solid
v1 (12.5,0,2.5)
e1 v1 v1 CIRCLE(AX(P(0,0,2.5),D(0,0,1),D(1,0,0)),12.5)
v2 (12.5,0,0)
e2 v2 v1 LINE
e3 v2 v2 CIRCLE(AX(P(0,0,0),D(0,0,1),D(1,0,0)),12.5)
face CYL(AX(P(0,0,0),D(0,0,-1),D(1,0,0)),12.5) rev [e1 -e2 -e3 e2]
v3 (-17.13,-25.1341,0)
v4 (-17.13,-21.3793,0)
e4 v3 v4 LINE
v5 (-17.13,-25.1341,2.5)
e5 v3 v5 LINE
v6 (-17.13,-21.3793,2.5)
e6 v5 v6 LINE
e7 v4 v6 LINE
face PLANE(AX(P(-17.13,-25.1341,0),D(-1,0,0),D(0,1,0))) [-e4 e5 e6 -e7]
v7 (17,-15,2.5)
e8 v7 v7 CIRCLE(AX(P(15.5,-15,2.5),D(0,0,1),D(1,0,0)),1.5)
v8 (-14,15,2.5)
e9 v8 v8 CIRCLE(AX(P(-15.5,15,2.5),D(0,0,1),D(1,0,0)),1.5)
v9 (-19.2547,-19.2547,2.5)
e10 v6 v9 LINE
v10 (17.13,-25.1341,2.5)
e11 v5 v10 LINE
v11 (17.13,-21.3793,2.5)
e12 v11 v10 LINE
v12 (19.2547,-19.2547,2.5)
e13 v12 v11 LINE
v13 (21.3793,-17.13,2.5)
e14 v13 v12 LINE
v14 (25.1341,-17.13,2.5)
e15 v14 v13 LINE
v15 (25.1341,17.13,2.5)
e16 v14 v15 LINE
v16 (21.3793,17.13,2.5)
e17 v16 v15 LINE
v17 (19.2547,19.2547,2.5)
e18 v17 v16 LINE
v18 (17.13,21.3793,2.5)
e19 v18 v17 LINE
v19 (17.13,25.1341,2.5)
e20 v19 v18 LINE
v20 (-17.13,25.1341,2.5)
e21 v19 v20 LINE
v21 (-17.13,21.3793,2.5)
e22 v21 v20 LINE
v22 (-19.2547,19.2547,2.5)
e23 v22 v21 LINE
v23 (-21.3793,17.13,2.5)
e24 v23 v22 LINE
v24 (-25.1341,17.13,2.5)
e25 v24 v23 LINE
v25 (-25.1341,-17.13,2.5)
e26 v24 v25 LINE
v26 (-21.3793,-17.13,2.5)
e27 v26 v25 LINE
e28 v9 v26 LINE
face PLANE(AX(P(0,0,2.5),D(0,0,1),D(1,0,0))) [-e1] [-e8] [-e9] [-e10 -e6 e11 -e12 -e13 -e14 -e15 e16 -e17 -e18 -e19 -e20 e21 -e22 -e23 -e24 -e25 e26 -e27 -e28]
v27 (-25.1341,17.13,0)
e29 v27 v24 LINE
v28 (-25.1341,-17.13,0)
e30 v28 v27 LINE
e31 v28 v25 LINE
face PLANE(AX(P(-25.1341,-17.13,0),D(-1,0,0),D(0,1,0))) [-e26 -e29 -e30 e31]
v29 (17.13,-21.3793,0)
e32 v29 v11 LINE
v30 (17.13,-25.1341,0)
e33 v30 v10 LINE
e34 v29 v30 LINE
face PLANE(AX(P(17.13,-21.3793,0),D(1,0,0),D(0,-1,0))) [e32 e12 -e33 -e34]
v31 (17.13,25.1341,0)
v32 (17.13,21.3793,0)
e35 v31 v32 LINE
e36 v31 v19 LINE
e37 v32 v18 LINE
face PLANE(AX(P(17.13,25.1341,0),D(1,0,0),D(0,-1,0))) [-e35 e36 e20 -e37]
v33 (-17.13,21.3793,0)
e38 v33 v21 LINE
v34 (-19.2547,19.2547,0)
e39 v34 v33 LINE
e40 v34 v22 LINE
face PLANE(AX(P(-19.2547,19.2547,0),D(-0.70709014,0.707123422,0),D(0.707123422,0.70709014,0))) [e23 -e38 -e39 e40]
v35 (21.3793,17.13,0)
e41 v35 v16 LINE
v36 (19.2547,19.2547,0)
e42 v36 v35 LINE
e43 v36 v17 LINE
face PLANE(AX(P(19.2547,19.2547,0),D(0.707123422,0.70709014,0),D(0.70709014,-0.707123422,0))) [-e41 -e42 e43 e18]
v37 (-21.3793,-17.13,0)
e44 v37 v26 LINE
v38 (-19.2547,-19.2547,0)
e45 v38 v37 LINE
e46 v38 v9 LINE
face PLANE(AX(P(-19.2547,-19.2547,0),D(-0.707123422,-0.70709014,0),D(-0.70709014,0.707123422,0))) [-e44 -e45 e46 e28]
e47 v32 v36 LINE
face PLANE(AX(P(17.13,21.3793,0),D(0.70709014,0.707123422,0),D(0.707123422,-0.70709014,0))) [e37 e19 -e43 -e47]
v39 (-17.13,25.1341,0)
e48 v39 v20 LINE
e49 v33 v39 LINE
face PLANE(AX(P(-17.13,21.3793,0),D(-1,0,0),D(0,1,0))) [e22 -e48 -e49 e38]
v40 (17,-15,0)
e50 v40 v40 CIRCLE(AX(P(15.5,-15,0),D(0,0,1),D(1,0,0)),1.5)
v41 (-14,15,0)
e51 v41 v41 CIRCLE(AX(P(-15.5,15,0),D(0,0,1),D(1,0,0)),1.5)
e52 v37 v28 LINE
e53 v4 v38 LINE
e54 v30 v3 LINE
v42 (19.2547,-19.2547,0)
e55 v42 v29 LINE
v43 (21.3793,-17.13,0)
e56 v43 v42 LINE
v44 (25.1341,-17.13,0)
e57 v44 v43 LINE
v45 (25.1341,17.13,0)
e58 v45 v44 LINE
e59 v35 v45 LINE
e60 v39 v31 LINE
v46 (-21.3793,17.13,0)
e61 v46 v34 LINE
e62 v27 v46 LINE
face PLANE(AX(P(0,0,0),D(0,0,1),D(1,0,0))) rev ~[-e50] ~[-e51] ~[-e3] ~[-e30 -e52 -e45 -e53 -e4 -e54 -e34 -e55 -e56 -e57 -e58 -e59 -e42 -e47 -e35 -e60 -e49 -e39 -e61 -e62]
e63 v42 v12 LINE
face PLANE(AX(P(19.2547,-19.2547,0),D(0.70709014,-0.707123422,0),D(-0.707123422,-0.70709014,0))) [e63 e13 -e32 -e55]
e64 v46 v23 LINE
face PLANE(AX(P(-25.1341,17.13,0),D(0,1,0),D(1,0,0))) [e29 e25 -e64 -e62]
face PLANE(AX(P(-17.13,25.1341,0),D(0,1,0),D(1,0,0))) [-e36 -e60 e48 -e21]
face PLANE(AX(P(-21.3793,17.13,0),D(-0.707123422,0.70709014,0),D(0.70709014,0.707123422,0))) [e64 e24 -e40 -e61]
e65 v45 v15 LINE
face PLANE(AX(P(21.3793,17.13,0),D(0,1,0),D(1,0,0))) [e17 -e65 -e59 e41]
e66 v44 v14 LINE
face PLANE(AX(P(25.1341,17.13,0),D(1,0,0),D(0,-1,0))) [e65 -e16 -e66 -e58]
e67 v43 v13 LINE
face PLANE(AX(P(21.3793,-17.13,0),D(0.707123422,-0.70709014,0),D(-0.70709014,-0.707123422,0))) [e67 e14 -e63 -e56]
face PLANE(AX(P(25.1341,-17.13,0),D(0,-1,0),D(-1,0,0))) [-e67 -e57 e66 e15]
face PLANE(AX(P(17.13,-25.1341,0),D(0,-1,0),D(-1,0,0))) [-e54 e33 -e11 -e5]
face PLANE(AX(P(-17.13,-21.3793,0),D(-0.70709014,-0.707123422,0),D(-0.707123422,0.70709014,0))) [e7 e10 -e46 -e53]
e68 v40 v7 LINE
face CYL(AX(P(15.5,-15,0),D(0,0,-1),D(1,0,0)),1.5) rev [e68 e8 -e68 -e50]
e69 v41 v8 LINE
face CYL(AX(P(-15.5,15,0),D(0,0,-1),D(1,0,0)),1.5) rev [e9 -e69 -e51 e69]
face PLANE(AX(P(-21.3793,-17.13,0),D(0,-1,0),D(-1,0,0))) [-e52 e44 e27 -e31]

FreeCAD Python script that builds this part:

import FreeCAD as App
import Part
import Sketcher

V = App.Vector

doc = App.newDocument("Part")
body = doc.addObject("PartDesign::Body", "Body")

# Sketch on XY plane
sketch1 = doc.addObject("Sketcher::SketchObject", "Sketch")
body.addObject(sketch1)
sketch1.AttachmentSupport = (doc.XY_Plane, [""])
sketch1.MapMode = "FlatFace"
sketch1.addGeometry([
    Part.LineSegment(V(-17.13, 25.1341, 0), V(-17.13, 21.3793, 0)),  # 0
    Part.LineSegment(V(-17.13, 21.3793, 0), V(-19.2547, 19.2547, 0)),  # 1
    Part.LineSegment(V(-19.2547, 19.2547, 0), V(-21.3793, 17.13, 0)),  # 2
    Part.LineSegment(V(-21.3793, 17.13, 0), V(-25.1341, 17.13, 0)),  # 3
    Part.LineSegment(V(-25.1341, 17.13, 0), V(-25.1341, -17.13, 0)),  # 4
    Part.LineSegment(V(-25.1341, -17.13, 0), V(-21.3793, -17.13, 0)),  # 5
    Part.LineSegment(V(-21.3793, -17.13, 0), V(-19.2547, -19.2547, 0)),  # 6
    Part.LineSegment(V(-19.2547, -19.2547, 0), V(-17.13, -21.3793, 0)),  # 7
    Part.LineSegment(V(-17.13, -21.3793, 0), V(-17.13, -25.1341, 0)),  # 8
    Part.LineSegment(V(-17.13, -25.1341, 0), V(17.13, -25.1341, 0)),  # 9
    Part.LineSegment(V(17.13, -25.1341, 0), V(17.13, -21.3793, 0)),  # 10
    Part.LineSegment(V(17.13, -21.3793, 0), V(19.2547, -19.2547, 0)),  # 11
    Part.LineSegment(V(19.2547, -19.2547, 0), V(21.3793, -17.13, 0)),  # 12
    Part.LineSegment(V(21.3793, -17.13, 0), V(25.1341, -17.13, 0)),  # 13
    Part.LineSegment(V(25.1341, -17.13, 0), V(25.1341, 17.13, 0)),  # 14
    Part.LineSegment(V(25.1341, 17.13, 0), V(21.3793, 17.13, 0)),  # 15
    Part.LineSegment(V(21.3793, 17.13, 0), V(19.2547, 19.2547, 0)),  # 16
    Part.LineSegment(V(19.2547, 19.2547, 0), V(17.13, 21.3793, 0)),  # 17
    Part.LineSegment(V(17.13, 21.3793, 0), V(17.13, 25.1341, 0)),  # 18
    Part.LineSegment(V(17.13, 25.1341, 0), V(-17.13, 25.1341, 0)),  # 19
    Part.Circle(V(0, 0, 0), V(0, 0, 1), 12.5),  # 20
    Part.Circle(V(15.5, -15, 0), V(0, 0, 1), 1.5),  # 21
    Part.Circle(V(-15.5, 15, 0), V(0, 0, 1), 1.5),  # 22
], False)
sketch1.addConstraint([
    Sketcher.Constraint("Coincident", 0, 2, 1, 1),
    Sketcher.Constraint("Coincident", 1, 2, 2, 1),
    Sketcher.Constraint("Coincident", 2, 2, 3, 1),
    Sketcher.Constraint("Coincident", 3, 2, 4, 1),
    Sketcher.Constraint("Coincident", 4, 2, 5, 1),
    Sketcher.Constraint("Coincident", 5, 2, 6, 1),
    Sketcher.Constraint("Coincident", 6, 2, 7, 1),
    Sketcher.Constraint("Coincident", 7, 2, 8, 1),
    Sketcher.Constraint("Coincident", 8, 2, 9, 1),
    Sketcher.Constraint("Coincident", 9, 2, 10, 1),
    Sketcher.Constraint("Coincident", 10, 2, 11, 1),
    Sketcher.Constraint("Coincident", 11, 2, 12, 1),
    Sketcher.Constraint("Coincident", 12, 2, 13, 1),
    Sketcher.Constraint("Coincident", 13, 2, 14, 1),
    Sketcher.Constraint("Coincident", 14, 2, 15, 1),
    Sketcher.Constraint("Coincident", 15, 2, 16, 1),
    Sketcher.Constraint("Coincident", 16, 2, 17, 1),
    Sketcher.Constraint("Coincident", 17, 2, 18, 1),
    Sketcher.Constraint("Coincident", 18, 2, 19, 1),
    Sketcher.Constraint("Coincident", 19, 2, 0, 1),
    Sketcher.Constraint("Vertical", 0),
    Sketcher.Constraint("Horizontal", 3),
    Sketcher.Constraint("Vertical", 4),
    Sketcher.Constraint("Horizontal", 5),
    Sketcher.Constraint("Vertical", 8),
    Sketcher.Constraint("Horizontal", 9),
    Sketcher.Constraint("Vertical", 10),
    Sketcher.Constraint("Horizontal", 13),
    Sketcher.Constraint("Vertical", 14),
    Sketcher.Constraint("Horizontal", 15),
    Sketcher.Constraint("Vertical", 18),
    Sketcher.Constraint("Horizontal", 19),
    Sketcher.Constraint("Coincident", 20, 3, -1, 1),
    Sketcher.Constraint("Equal", 21, 22),
    Sketcher.Constraint("Symmetric", 21, 3, 22, 3, -1, 1),
    Sketcher.Constraint("Symmetric", 0, 2, 10, 2, -1, 1),
    Sketcher.Constraint("Symmetric", 1, 2, 11, 2, -1, 1),
    Sketcher.Constraint("Symmetric", 2, 2, 12, 2, -1, 1),
    Sketcher.Constraint("Symmetric", 4, 2, 14, 2, -1, 1),
    Sketcher.Constraint("Symmetric", 6, 2, 16, 2, -1, 1),
    Sketcher.Constraint("Symmetric", 7, 2, 17, 2, -1, 1),
    Sketcher.Constraint("Symmetric", 7, 2, 10, 2, -2),
    Sketcher.Constraint("Symmetric", 6, 2, 11, 2, -2),
    Sketcher.Constraint("Symmetric", 5, 2, 12, 2, -2),
    Sketcher.Constraint("Parallel", 1, 2),
    Sketcher.Constraint("Perpendicular", 2, 6),
    Sketcher.Constraint("Perpendicular", 12, 16),
    Sketcher.Constraint("Equal", 15, 0),
    Sketcher.Constraint("Equal", 19, 4),
    Sketcher.Constraint("Equal", 0, 8),
    Sketcher.Constraint("Equal", 1, 2),
    Sketcher.Constraint("Diameter", 20, 25.0),
    Sketcher.Constraint("Diameter", 21, 3.0),
    Sketcher.Constraint("DistanceY", 21, 3, -1, 1, 15.0),
    Sketcher.Constraint("DistanceX", -1, 1, 21, 3, 15.5),
    Sketcher.Constraint("DistanceX", 9, 1, 9, 2, 34.26),
    Sketcher.Constraint("DistanceX", 3, 2, 3, 1, 3.7548),
    Sketcher.Constraint("DistanceX", 3, 2, -1, 1, 25.134),
])
pad1 = doc.addObject("PartDesign::Pad", "Pad")
body.addObject(pad1)
pad1.Profile = sketch1
pad1.Length = 2.5

doc.recompute()
